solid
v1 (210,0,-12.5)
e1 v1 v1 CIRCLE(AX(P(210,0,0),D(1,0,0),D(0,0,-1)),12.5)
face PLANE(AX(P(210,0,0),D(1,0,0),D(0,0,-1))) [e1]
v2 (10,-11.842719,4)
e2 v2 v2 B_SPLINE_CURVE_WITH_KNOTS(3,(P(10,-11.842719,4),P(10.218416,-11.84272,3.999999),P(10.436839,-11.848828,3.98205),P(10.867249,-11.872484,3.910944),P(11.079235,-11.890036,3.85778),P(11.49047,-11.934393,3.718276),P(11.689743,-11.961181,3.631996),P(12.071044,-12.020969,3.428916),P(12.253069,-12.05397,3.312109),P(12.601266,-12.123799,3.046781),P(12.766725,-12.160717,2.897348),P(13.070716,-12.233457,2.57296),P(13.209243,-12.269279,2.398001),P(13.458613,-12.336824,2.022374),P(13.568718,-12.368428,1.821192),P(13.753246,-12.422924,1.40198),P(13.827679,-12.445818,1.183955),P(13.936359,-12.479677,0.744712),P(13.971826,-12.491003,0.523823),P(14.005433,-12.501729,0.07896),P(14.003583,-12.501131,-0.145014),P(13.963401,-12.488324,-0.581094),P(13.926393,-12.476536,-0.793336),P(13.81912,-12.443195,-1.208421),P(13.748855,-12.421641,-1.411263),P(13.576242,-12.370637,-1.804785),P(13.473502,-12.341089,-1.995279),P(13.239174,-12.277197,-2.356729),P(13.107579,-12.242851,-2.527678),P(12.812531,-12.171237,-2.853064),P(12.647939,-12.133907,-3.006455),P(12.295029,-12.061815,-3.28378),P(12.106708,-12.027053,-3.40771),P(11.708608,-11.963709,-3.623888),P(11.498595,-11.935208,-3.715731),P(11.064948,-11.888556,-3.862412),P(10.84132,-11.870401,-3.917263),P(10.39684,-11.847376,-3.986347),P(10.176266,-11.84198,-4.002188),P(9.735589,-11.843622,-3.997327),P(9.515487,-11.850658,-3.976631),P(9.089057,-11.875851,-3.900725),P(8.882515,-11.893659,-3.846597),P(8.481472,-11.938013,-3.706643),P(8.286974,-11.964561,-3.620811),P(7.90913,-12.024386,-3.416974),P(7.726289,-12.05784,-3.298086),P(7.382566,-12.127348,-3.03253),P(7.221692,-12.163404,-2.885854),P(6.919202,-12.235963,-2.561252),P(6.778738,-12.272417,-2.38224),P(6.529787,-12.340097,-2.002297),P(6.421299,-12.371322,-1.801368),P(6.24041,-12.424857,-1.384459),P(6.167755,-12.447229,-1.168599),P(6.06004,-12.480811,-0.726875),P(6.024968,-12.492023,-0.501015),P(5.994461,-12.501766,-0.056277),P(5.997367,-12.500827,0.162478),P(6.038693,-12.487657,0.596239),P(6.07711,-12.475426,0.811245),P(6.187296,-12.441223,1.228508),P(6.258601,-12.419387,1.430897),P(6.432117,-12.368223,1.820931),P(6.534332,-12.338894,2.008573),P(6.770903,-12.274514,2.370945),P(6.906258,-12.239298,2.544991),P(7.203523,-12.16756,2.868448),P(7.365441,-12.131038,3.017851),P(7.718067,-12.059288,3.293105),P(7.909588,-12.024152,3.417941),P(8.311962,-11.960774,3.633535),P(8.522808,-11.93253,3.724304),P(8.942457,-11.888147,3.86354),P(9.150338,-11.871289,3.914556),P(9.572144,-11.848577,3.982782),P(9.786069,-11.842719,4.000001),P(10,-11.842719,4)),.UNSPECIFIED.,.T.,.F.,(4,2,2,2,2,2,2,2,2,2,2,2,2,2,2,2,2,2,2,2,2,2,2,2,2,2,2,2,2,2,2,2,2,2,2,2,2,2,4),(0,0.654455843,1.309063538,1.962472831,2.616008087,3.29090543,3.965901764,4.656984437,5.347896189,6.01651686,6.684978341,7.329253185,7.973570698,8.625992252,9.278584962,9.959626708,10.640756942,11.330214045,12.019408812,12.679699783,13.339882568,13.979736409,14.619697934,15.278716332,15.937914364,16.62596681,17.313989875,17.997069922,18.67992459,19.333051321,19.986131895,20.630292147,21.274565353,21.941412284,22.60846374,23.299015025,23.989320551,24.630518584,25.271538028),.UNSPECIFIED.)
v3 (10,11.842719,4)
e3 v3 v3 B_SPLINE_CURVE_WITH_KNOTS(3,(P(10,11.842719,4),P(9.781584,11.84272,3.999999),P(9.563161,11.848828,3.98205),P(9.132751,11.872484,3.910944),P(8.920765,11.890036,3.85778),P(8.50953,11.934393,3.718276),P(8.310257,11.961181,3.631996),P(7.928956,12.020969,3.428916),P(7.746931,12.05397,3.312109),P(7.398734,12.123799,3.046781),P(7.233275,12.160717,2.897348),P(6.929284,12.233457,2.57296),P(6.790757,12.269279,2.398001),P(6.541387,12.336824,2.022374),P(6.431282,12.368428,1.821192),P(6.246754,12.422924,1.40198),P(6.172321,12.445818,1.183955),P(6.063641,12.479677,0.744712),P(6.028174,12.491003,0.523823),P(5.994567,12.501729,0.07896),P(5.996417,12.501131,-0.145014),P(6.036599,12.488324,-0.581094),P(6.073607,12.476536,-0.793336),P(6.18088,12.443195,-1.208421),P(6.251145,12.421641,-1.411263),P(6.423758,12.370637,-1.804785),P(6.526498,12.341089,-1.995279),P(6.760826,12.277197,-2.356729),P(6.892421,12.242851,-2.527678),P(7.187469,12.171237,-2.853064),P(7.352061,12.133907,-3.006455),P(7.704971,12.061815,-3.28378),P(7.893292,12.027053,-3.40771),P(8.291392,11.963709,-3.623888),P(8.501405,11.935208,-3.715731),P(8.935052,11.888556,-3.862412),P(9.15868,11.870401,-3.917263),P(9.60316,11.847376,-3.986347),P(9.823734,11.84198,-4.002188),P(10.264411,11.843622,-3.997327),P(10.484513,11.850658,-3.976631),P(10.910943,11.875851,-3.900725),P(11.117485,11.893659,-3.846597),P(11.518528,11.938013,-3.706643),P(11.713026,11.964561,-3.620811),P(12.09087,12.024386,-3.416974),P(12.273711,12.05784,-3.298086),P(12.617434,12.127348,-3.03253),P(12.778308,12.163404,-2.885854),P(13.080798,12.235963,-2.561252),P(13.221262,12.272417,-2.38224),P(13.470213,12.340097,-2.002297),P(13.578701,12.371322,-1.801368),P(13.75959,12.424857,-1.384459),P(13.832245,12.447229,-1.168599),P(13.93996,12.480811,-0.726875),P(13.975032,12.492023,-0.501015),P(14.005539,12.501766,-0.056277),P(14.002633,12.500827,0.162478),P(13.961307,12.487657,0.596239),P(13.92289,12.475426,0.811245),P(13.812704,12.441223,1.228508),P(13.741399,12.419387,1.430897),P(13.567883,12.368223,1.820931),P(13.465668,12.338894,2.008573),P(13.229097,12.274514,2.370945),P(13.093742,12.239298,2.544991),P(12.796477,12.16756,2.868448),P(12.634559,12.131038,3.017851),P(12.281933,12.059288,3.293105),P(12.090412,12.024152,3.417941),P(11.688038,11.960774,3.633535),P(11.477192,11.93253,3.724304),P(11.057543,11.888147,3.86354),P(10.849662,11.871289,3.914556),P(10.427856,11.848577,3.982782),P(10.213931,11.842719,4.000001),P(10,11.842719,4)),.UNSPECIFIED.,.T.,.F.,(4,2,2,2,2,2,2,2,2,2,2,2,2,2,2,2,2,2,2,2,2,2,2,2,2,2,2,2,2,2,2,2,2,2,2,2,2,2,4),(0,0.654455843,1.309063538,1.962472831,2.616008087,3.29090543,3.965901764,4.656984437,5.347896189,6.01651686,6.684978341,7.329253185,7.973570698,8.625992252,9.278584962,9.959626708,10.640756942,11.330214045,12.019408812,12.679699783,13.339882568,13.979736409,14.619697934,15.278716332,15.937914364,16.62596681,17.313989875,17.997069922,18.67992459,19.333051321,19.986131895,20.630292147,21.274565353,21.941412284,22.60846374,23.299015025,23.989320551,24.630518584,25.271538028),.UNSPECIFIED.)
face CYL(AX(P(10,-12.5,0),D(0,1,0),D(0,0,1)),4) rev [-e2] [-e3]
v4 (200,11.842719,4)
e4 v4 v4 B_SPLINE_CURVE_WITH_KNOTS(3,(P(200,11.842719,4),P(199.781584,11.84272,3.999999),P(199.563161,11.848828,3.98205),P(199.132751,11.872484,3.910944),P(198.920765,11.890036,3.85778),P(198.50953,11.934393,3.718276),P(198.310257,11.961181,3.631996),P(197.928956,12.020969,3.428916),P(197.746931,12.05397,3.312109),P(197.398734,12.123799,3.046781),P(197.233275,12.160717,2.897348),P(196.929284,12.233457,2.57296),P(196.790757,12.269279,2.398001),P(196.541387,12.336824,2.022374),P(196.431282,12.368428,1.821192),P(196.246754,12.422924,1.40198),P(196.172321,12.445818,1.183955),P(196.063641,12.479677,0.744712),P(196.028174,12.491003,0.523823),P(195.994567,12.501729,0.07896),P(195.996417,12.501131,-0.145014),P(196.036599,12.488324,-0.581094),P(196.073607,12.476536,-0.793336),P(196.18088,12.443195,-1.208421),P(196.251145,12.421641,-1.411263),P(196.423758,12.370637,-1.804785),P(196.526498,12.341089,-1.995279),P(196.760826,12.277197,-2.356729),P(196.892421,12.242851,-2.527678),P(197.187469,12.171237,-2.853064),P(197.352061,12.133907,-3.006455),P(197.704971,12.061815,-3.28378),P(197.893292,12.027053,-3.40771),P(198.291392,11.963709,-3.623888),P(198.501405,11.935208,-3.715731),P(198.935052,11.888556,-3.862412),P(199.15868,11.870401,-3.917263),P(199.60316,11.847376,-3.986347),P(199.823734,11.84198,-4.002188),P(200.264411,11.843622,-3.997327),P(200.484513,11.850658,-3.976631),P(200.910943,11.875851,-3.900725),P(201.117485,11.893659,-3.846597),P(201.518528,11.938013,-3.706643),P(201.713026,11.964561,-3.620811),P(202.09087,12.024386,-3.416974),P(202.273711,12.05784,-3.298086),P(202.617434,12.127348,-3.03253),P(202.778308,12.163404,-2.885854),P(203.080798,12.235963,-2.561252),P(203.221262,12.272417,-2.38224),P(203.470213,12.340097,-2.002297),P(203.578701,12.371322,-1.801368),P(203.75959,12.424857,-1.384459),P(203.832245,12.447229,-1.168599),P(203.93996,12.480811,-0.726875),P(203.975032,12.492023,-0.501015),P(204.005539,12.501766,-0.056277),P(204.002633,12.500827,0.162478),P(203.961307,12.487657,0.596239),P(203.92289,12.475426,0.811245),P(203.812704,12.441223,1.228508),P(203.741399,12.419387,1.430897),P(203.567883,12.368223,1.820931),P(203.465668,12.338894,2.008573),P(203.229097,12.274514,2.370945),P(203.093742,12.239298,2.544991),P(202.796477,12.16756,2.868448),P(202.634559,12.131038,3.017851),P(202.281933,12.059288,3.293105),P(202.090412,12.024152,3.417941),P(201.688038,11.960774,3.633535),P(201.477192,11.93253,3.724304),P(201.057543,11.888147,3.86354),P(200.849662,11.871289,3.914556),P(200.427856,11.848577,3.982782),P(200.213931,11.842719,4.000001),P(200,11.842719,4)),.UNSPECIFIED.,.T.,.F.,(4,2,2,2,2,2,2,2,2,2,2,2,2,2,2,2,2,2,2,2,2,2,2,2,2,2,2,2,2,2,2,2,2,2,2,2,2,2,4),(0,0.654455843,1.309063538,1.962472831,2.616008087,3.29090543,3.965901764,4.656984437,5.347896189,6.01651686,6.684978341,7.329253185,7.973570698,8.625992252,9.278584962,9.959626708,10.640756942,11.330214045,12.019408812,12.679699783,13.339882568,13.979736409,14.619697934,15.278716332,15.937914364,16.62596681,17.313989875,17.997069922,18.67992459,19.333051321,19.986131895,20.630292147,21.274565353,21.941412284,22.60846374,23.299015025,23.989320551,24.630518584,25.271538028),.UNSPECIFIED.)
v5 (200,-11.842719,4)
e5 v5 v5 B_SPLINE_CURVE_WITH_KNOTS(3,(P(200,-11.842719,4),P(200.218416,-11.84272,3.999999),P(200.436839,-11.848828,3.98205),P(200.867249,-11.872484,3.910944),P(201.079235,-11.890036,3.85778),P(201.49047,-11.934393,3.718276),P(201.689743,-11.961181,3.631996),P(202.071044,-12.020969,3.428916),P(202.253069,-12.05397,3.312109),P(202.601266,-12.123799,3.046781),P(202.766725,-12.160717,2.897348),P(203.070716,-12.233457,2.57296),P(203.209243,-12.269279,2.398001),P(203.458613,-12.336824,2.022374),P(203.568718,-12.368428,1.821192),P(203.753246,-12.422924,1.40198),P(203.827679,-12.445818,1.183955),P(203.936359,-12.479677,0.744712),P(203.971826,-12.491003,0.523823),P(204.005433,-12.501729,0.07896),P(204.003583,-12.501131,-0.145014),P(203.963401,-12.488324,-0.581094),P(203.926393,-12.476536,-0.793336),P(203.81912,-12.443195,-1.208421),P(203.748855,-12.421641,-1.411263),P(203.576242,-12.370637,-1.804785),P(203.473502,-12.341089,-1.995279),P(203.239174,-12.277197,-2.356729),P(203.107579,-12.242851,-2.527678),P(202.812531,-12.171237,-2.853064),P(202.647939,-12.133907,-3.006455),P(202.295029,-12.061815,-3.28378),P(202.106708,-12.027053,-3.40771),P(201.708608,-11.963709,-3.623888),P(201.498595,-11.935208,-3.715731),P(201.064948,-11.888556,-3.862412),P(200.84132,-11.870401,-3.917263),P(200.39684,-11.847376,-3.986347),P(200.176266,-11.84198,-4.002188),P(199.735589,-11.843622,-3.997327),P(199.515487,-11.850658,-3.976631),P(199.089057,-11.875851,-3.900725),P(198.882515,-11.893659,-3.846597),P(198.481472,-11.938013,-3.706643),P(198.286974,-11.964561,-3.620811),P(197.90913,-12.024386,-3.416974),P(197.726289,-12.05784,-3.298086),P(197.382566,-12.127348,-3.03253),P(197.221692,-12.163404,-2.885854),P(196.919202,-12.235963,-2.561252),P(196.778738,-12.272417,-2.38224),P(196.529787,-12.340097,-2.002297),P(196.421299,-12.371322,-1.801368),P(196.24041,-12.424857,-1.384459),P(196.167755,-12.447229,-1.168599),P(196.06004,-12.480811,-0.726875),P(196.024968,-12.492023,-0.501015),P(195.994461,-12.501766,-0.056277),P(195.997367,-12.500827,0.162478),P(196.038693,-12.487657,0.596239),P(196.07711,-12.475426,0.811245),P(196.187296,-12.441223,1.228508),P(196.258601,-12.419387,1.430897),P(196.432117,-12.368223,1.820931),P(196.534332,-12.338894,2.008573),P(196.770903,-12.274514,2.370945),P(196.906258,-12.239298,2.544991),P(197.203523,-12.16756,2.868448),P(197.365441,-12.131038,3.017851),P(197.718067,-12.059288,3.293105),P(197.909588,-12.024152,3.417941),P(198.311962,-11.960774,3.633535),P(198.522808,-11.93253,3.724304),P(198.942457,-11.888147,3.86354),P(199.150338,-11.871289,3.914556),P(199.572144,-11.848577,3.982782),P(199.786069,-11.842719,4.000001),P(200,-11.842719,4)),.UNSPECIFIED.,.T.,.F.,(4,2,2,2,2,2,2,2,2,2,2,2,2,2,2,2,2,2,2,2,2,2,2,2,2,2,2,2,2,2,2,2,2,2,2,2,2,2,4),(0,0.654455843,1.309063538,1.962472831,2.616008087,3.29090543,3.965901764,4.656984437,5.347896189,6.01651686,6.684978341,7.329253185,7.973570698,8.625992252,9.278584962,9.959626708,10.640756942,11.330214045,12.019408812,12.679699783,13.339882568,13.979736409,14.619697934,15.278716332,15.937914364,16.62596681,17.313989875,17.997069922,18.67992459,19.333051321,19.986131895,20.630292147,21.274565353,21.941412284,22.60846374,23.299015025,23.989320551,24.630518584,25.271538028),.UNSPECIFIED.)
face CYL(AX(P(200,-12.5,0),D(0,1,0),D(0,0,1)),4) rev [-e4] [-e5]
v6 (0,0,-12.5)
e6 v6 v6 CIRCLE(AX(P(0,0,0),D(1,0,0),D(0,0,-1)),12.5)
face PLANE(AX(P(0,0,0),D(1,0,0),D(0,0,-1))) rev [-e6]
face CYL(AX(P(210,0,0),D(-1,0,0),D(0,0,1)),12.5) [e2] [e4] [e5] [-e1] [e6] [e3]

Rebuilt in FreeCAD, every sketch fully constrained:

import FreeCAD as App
import Part
import Sketcher

doc = App.newDocument("Part")
body = doc.addObject("PartDesign::Body", "Body")

sketch1 = body.newObject("Sketcher::SketchObject", "Sketch")
sketch1.AttachmentSupport = (doc.getObject("YZ_Plane"), [""])
sketch1.MapMode = "FlatFace"
sketch1.addGeometry(Part.Circle(App.Vector(0, 0, 0), App.Vector(0, 0, 1), 12.5), False)
sketch1.addConstraint(Sketcher.Constraint("Coincident", 0, 3, -1, 1))
sketch1.addConstraint(Sketcher.Constraint("Diameter", 0, 25.0))
pad1 = body.newObject("PartDesign::Pad", "Pad")
pad1.Profile = sketch1
pad1.Length = 210

sketch2 = body.newObject("Sketcher::SketchObject", "Sketch001")
sketch2.AttachmentSupport = (doc.getObject("XZ_Plane"), [""])
sketch2.MapMode = "FlatFace"
sketch2.addGeometry(Part.Circle(App.Vector(10, 0, 0), App.Vector(0, 0, 1), 4), False)
sketch2.addGeometry(Part.Circle(App.Vector(200, 0, 0), App.Vector(0, 0, 1), 4), False)
sketch2.addConstraint(Sketcher.Constraint("Equal", 0, 1))
sketch2.addConstraint(Sketcher.Constraint("PointOnObject", 0, 3, -1))
sketch2.addConstraint(Sketcher.Constraint("PointOnObject", 1, 3, -1))
sketch2.addConstraint(Sketcher.Constraint("Diameter", 0, 8.0))
sketch2.addConstraint(Sketcher.Constraint("DistanceX", -1, 1, 0, 3, 10.0))
sketch2.addConstraint(Sketcher.Constraint("DistanceX", -1, 1, 1, 3, 200.0))
pocket1 = body.newObject("PartDesign::Pocket", "Pocket")
pocket1.Profile = sketch2
pocket1.Type = "ThroughAll"
pocket1.Midplane = True

doc.recompute()
